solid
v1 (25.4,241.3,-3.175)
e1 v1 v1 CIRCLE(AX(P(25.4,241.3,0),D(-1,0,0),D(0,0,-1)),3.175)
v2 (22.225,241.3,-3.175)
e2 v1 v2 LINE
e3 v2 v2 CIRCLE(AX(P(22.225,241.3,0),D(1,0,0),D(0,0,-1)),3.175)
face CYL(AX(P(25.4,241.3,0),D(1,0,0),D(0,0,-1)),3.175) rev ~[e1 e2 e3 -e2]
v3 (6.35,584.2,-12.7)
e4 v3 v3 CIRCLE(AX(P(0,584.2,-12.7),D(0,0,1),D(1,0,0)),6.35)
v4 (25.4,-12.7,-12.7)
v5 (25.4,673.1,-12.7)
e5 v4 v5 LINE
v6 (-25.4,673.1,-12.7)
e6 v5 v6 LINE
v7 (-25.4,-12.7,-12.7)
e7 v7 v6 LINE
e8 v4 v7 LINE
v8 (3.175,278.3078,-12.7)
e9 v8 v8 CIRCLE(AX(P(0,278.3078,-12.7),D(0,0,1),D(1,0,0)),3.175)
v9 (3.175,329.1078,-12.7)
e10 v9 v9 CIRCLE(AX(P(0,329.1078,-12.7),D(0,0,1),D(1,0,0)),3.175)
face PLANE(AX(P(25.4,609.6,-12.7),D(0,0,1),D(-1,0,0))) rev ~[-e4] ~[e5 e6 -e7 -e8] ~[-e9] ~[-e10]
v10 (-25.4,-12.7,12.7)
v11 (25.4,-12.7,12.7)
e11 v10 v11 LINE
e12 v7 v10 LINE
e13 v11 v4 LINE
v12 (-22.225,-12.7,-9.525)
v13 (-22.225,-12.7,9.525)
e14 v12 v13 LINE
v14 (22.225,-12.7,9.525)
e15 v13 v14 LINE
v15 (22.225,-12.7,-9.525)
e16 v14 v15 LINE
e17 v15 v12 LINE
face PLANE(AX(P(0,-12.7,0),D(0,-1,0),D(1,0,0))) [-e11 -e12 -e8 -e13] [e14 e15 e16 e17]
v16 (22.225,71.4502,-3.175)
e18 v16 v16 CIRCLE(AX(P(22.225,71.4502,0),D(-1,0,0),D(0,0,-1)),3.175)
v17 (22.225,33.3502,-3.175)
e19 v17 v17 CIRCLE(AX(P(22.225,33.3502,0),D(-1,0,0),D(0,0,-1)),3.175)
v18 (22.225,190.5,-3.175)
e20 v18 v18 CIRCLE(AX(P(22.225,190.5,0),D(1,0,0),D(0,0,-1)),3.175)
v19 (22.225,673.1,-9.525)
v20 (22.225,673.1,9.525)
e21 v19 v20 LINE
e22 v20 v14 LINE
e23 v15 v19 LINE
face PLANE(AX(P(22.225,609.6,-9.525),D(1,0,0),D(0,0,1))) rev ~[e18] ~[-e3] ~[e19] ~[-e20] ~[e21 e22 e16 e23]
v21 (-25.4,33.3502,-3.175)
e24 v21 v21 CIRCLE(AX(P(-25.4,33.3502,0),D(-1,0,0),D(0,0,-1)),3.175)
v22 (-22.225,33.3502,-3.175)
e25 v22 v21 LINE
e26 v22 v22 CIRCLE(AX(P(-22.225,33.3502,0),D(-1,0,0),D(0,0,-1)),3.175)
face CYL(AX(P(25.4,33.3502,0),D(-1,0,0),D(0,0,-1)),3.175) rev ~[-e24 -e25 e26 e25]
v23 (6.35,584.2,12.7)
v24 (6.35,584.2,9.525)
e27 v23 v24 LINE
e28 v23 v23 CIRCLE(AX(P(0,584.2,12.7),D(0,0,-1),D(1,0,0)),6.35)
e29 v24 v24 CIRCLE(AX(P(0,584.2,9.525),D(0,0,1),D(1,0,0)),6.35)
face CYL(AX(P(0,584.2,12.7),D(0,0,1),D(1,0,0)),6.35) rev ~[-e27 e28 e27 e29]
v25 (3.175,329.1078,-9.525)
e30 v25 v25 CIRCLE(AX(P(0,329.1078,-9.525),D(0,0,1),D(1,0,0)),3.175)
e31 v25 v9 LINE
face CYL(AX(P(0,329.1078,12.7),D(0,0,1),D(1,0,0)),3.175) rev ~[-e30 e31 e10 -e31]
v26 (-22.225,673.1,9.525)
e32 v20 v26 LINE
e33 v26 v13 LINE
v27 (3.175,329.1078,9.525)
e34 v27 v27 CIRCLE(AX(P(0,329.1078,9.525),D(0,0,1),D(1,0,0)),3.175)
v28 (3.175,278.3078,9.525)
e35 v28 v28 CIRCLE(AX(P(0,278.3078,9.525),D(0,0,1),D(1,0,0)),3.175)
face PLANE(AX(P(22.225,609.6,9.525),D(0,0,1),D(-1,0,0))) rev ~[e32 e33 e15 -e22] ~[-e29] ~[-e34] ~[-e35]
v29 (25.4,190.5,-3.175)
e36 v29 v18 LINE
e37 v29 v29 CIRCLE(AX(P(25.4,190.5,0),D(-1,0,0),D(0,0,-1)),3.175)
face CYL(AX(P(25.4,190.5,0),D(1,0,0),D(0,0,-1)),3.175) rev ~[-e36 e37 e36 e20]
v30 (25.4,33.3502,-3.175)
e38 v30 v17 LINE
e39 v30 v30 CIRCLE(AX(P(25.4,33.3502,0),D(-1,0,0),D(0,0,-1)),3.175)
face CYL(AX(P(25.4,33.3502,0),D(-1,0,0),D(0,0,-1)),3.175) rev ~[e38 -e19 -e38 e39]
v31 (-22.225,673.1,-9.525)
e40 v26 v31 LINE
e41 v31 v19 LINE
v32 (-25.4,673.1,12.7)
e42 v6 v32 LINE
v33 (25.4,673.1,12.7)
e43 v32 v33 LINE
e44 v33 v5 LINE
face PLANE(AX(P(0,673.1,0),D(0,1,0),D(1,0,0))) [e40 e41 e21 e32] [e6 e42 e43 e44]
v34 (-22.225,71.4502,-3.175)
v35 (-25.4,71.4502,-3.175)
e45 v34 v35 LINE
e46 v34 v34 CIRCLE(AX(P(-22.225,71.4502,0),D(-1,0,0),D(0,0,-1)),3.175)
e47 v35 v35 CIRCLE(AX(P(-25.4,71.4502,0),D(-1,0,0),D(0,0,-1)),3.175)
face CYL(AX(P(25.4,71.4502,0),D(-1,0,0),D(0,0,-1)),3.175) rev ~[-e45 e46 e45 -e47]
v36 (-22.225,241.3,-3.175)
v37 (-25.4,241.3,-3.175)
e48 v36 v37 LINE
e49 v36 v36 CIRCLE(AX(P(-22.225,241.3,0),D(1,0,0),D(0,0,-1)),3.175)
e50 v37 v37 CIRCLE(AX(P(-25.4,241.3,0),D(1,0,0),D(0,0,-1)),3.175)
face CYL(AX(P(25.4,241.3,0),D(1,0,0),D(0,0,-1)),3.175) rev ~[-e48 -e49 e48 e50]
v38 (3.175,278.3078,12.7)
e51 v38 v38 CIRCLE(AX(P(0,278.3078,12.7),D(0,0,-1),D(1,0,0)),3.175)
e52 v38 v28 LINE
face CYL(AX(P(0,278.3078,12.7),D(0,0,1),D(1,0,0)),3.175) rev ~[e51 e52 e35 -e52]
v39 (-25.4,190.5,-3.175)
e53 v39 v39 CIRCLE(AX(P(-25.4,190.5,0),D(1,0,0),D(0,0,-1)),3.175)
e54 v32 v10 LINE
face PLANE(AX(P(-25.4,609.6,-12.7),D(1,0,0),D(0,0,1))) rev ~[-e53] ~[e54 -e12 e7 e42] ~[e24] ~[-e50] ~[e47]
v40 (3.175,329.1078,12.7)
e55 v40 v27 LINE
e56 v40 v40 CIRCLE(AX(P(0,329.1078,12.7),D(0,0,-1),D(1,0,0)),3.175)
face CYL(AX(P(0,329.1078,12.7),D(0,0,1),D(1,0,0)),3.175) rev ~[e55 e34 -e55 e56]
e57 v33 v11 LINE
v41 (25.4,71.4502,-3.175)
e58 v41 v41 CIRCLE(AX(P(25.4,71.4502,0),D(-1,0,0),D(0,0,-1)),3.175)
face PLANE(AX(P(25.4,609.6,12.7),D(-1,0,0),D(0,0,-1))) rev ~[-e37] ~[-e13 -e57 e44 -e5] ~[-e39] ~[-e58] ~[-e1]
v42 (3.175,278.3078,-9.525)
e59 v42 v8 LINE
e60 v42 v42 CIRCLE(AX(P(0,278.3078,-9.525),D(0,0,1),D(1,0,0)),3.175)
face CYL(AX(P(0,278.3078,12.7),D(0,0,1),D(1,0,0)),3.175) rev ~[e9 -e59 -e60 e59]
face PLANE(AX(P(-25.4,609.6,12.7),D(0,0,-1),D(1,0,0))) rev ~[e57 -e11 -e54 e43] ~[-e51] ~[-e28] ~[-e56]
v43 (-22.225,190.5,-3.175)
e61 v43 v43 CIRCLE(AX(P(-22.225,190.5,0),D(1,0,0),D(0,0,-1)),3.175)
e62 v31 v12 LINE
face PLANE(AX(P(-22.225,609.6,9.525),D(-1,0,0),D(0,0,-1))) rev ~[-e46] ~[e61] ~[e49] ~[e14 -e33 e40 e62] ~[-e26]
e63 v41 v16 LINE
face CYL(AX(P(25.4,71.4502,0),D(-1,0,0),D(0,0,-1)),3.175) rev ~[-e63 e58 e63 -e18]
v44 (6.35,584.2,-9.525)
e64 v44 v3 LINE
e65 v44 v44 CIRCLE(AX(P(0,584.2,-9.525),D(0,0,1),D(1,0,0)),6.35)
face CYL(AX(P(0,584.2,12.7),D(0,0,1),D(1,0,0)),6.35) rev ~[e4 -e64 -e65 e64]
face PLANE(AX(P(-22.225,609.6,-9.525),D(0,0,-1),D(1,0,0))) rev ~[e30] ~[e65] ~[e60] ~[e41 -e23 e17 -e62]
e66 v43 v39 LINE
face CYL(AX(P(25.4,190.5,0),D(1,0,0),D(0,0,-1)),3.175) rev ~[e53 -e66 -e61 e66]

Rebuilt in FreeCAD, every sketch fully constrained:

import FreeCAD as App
import Part
import Sketcher
Q = App.Units.Quantity

doc = App.newDocument("Part")
body = doc.addObject("PartDesign::Body", "Body")

sketch1 = body.newObject("Sketcher::SketchObject", "Sketch")
sketch1.AttachmentSupport = (doc.getObject("XZ_Plane"), [""])
sketch1.MapMode = "FlatFace"
sketch1.addGeometry([
    Part.LineSegment(App.Vector(25, 13, 0), App.Vector(25, -13, 0)),
    Part.LineSegment(App.Vector(25, -13, 0), App.Vector(-25, -13, 0)),
    Part.LineSegment(App.Vector(-25, -13, 0), App.Vector(-25, 13, 0)),
    Part.LineSegment(App.Vector(-25, 13, 0), App.Vector(25, 13, 0)),
    Part.LineSegment(App.Vector(-22, 10, 0), App.Vector(-22, -10, 0)),
    Part.LineSegment(App.Vector(-22, -10, 0), App.Vector(22, -10, 0)),
    Part.LineSegment(App.Vector(22, -10, 0), App.Vector(22, 10, 0)),
    Part.LineSegment(App.Vector(22, 10, 0), App.Vector(-22, 10, 0)),
], False)
sketch1.addConstraint([
    Sketcher.Constraint("Coincident", 0, 2, 1, 1),
    Sketcher.Constraint("Coincident", 1, 2, 2, 1),
    Sketcher.Constraint("Coincident", 2, 2, 3, 1),
    Sketcher.Constraint("Coincident", 3, 2, 0, 1),
    Sketcher.Constraint("Coincident", 4, 2, 5, 1),
    Sketcher.Constraint("Coincident", 5, 2, 6, 1),
    Sketcher.Constraint("Coincident", 6, 2, 7, 1),
    Sketcher.Constraint("Coincident", 7, 2, 4, 1),
    Sketcher.Constraint("Vertical", 0),
    Sketcher.Constraint("Horizontal", 1),
    Sketcher.Constraint("Vertical", 2),
    Sketcher.Constraint("Horizontal", 3),
    Sketcher.Constraint("Vertical", 4),
    Sketcher.Constraint("Horizontal", 5),
    Sketcher.Constraint("Vertical", 6),
    Sketcher.Constraint("Horizontal", 7),
    Sketcher.Constraint("Symmetric", 0, 2, 2, 2, -1, 1),
    Sketcher.Constraint("Symmetric", 4, 2, 6, 2, -1, 1),
    Sketcher.Constraint("DistanceX", 1, 2, 1, 1, Q("2 in")),
    Sketcher.Constraint("DistanceY", 0, 2, 0, 1, Q("1 in")),
    Sketcher.Constraint("DistanceX", 5, 1, 5, 2, Q("1.75 in")),
    Sketcher.Constraint("DistanceY", 4, 2, 4, 1, Q("0.75 in")),
])
pad1 = body.newObject("PartDesign::Pad", "Pad")
pad1.Profile = sketch1
pad1.Length = Q("24 in")
pad1.Reversed = True

sketch2 = body.newObject("Sketcher::SketchObject", "Sketch001")
sketch2.AttachmentSupport = (doc.getObject("XY_Plane"), [""])
sketch2.MapMode = "FlatFace"
sketch2.AttachmentOffset = App.Placement(App.Vector(0, 0, 0.5 * 25.4), App.Rotation())
sketch2.addGeometry(Part.Circle(App.Vector(0, 584, 0), App.Vector(0, 0, 1), 6), False)
sketch2.addConstraint([
    Sketcher.Constraint("PointOnObject", 0, 3, -2),
    Sketcher.Constraint("Diameter", 0, Q("0.5 in")),
    Sketcher.Constraint("DistanceY", -1, 1, 0, 3, Q("23 in")),
])
pocket1 = body.newObject("PartDesign::Pocket", "Pocket")
pocket1.Profile = sketch2
pocket1.Length = Q("24 in")

sketch3 = body.newObject("Sketcher::SketchObject", "Sketch002")
sketch3.AttachmentSupport = (doc.getObject("XZ_Plane"), [""])
sketch3.MapMode = "FlatFace"
sketch3.addGeometry([
    Part.LineSegment(App.Vector(-25, -13, 0), App.Vector(25, -13, 0)),
    Part.LineSegment(App.Vector(25, -13, 0), App.Vector(25, 13, 0)),
    Part.LineSegment(App.Vector(25, 13, 0), App.Vector(-25, 13, 0)),
    Part.LineSegment(App.Vector(-25, 13, 0), App.Vector(-25, -13, 0)),
    Part.LineSegment(App.Vector(-22, 10, 0), App.Vector(22, 10, 0)),
    Part.LineSegment(App.Vector(22, 10, 0), App.Vector(22, -10, 0)),
    Part.LineSegment(App.Vector(22, -10, 0), App.Vector(-22, -10, 0)),
    Part.LineSegment(App.Vector(-22, -10, 0), App.Vector(-22, 10, 0)),
], False)
sketch3.addConstraint([
    Sketcher.Constraint("Coincident", 0, 2, 1, 1),
    Sketcher.Constraint("Coincident", 1, 2, 2, 1),
    Sketcher.Constraint("Coincident", 2, 2, 3, 1),
    Sketcher.Constraint("Coincident", 3, 2, 0, 1),
    Sketcher.Constraint("Coincident", 4, 2, 5, 1),
    Sketcher.Constraint("Coincident", 5, 2, 6, 1),
    Sketcher.Constraint("Coincident", 6, 2, 7, 1),
    Sketcher.Constraint("Coincident", 7, 2, 4, 1),
    Sketcher.Constraint("Horizontal", 0),
    Sketcher.Constraint("Vertical", 1),
    Sketcher.Constraint("Horizontal", 2),
    Sketcher.Constraint("Vertical", 3),
    Sketcher.Constraint("Horizontal", 4),
    Sketcher.Constraint("Vertical", 5),
    Sketcher.Constraint("Horizontal", 6),
    Sketcher.Constraint("Vertical", 7),
    Sketcher.Constraint("Symmetric", 0, 2, 2, 2, -1, 1),
    Sketcher.Constraint("Symmetric", 4, 2, 6, 2, -1, 1),
    Sketcher.Constraint("DistanceX", 0, 1, 0, 2, Q("2 in")),
    Sketcher.Constraint("DistanceY", 1, 1, 1, 2, Q("1 in")),
    Sketcher.Constraint("DistanceX", 4, 1, 4, 2, Q("1.75 in")),
    Sketcher.Constraint("DistanceY", 5, 2, 5, 1, Q("0.75 in")),
])
pad2 = body.newObject("PartDesign::Pad", "Pad001")
pad2.Profile = sketch3
pad2.Length = Q("0.5 in")

sketch4 = body.newObject("Sketcher::SketchObject", "Sketch003")
sketch4.AttachmentSupport = (doc.getObject("XZ_Plane"), [""])
sketch4.MapMode = "FlatFace"
sketch4.AttachmentOffset = App.Placement(App.Vector(0, 0, -24 * 25.4), App.Rotation())
sketch4.addGeometry([
    Part.LineSegment(App.Vector(25, 13, 0), App.Vector(25, -13, 0)),
    Part.LineSegment(App.Vector(25, -13, 0), App.Vector(-25, -13, 0)),
    Part.LineSegment(App.Vector(-25, -13, 0), App.Vector(-25, 13, 0)),
    Part.LineSegment(App.Vector(-25, 13, 0), App.Vector(25, 13, 0)),
    Part.LineSegment(App.Vector(-22, -10, 0), App.Vector(22, -10, 0)),
    Part.LineSegment(App.Vector(22, -10, 0), App.Vector(22, 10, 0)),
    Part.LineSegment(App.Vector(22, 10, 0), App.Vector(-22, 10, 0)),
    Part.LineSegment(App.Vector(-22, 10, 0), App.Vector(-22, -10, 0)),
], False)
sketch4.addConstraint([
    Sketcher.Constraint("Coincident", 0, 2, 1, 1),
    Sketcher.Constraint("Coincident", 1, 2, 2, 1),
    Sketcher.Constraint("Coincident", 2, 2, 3, 1),
    Sketcher.Constraint("Coincident", 3, 2, 0, 1),
    Sketcher.Constraint("Coincident", 4, 2, 5, 1),
    Sketcher.Constraint("Coincident", 5, 2, 6, 1),
    Sketcher.Constraint("Coincident", 6, 2, 7, 1),
    Sketcher.Constraint("Coincident", 7, 2, 4, 1),
    Sketcher.Constraint("Vertical", 0),
    Sketcher.Constraint("Horizontal", 1),
    Sketcher.Constraint("Vertical", 2),
    Sketcher.Constraint("Horizontal", 3),
    Sketcher.Constraint("Horizontal", 4),
    Sketcher.Constraint("Vertical", 5),
    Sketcher.Constraint("Horizontal", 6),
    Sketcher.Constraint("Vertical", 7),
    Sketcher.Constraint("Symmetric", 0, 2, 2, 2, -1, 1),
    Sketcher.Constraint("Symmetric", 4, 2, 6, 2, -1, 1),
    Sketcher.Constraint("DistanceX", 1, 2, 1, 1, Q("2 in")),
    Sketcher.Constraint("DistanceY", 0, 2, 0, 1, Q("1 in")),
    Sketcher.Constraint("DistanceX", 4, 1, 4, 2, Q("1.75 in")),
    Sketcher.Constraint("DistanceY", 5, 1, 5, 2, Q("0.75 in")),
])
pad3 = body.newObject("PartDesign::Pad", "Pad002")
pad3.Profile = sketch4
pad3.Length = Q("2.5 in")
pad3.Reversed = True

sketch5 = body.newObject("Sketcher::SketchObject", "Sketch004")
sketch5.AttachmentSupport = (doc.getObject("XY_Plane"), [""])
sketch5.MapMode = "FlatFace"
sketch5.AttachmentOffset = App.Placement(App.Vector(0, 0, 0.5 * 25.4), App.Rotation())
sketch5.addGeometry([
    Part.Circle(App.Vector(0, 329.1, 0), App.Vector(0, 0, 1), 3.2),
    Part.Circle(App.Vector(0, 278.3, 0), App.Vector(0, 0, 1), 3.2),
], False)
sketch5.addConstraint([
    Sketcher.Constraint("Equal", 0, 1),
    Sketcher.Constraint("PointOnObject", 0, 3, -2),
    Sketcher.Constraint("PointOnObject", 1, 3, -2),
    Sketcher.Constraint("Diameter", 0, Q("0.25 in")),
    Sketcher.Constraint("DistanceY", 1, 3, 0, 3, Q("2 in")),
    Sketcher.Constraint("DistanceY", -1, 1, 0, 3, Q("12.957 in")),
])
pocket2 = body.newObject("PartDesign::Pocket", "Pocket001")
pocket2.Profile = sketch5
pocket2.Length = Q("2 in")

sketch6 = body.newObject("Sketcher::SketchObject", "Sketch005")
sketch6.AttachmentSupport = (doc.getObject("YZ_Plane"), [""])
sketch6.MapMode = "FlatFace"
sketch6.AttachmentOffset = App.Placement(App.Vector(0, 0, 1 * 25.4), App.Rotation())
sketch6.addGeometry([
    Part.Circle(App.Vector(71.5, 0, 0), App.Vector(0, 0, 1), 3.2),
    Part.Circle(App.Vector(33.4, 0, 0), App.Vector(0, 0, 1), 3.2),
], False)
sketch6.addConstraint([
    Sketcher.Constraint("Equal", 0, 1),
    Sketcher.Constraint("PointOnObject", 0, 3, -1),
    Sketcher.Constraint("PointOnObject", 1, 3, -1),
    Sketcher.Constraint("Diameter", 0, Q("0.25 in")),
    Sketcher.Constraint("DistanceX", 1, 3, 0, 3, Q("1.5 in")),
    Sketcher.Constraint("DistanceX", -1, 1, 0, 3, Q("2.813 in")),
])
doc.recompute()
hole = body.newObject("PartDesign::Hole", "Hole")
hole.Profile = sketch6
hole.ThreadType = "None"
hole.Diameter = Q("0.25 in")
hole.DepthType = "ThroughAll"

sketch7 = body.newObject("Sketcher::SketchObject", "Sketch006")
sketch7.AttachmentSupport = (doc.getObject("YZ_Plane"), [""])
sketch7.MapMode = "FlatFace"
sketch7.AttachmentOffset = App.Placement(App.Vector(0, 0, 1 * 25.4), App.Rotation())
sketch7.addGeometry([
    Part.Circle(App.Vector(241.3, 0, 0), App.Vector(0, 0, 1), 3.2),
    Part.Circle(App.Vector(190.5, 0, 0), App.Vector(0, 0, 1), 3.2),
], False)
sketch7.addConstraint([
    Sketcher.Constraint("Equal", 0, 1),
    Sketcher.Constraint("PointOnObject", 0, 3, -1),
    Sketcher.Constraint("PointOnObject", 1, 3, -1),
    Sketcher.Constraint("Diameter", 0, Q("0.25 in")),
    Sketcher.Constraint("DistanceX", 1, 3, 0, 3, Q("2 in")),
    Sketcher.Constraint("DistanceX", -1, 1, 0, 3, Q("9.5 in")),
])
pocket3 = body.newObject("PartDesign::Pocket", "Pocket002")
pocket3.Profile = sketch7
pocket3.Length = Q("2 in")

doc.recompute()
